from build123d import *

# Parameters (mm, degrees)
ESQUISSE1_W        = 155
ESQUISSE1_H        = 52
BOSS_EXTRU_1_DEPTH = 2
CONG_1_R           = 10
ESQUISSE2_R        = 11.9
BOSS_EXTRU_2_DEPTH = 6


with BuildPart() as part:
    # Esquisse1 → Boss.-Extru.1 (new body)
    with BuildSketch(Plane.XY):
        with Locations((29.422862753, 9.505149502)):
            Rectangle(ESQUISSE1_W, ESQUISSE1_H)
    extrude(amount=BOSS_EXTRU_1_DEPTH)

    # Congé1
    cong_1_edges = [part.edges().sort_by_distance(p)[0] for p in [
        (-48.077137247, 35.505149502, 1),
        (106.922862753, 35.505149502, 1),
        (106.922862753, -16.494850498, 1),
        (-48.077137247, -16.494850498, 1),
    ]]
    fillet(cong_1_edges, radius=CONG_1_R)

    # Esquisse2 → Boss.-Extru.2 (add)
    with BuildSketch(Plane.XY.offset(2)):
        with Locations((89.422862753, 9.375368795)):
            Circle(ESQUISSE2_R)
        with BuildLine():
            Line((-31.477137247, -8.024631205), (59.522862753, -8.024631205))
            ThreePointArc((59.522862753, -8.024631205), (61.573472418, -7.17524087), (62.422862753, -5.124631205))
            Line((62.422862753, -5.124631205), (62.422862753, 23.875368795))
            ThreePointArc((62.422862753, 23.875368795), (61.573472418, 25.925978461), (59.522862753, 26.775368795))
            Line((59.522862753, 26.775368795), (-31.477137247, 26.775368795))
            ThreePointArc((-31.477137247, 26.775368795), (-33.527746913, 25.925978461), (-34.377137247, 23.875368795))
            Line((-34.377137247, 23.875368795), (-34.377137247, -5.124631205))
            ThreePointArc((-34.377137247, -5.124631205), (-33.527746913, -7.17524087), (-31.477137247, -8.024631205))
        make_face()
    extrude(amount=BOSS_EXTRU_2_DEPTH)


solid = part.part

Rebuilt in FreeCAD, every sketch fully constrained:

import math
import FreeCAD as App
import Part
import Sketcher

V = App.Vector


def edges_at(feature, points):
    """Names of the edges that pass closest to the given points."""
    edges = feature.Shape.Edges
    near = lambda p: min(range(len(edges)), key=lambda i: edges[i].distToShape(Part.Vertex(*p))[0])
    return sorted({f"Edge{near(p) + 1}" for p in points})


def add_polygon(sketch, points):
    """Adds a closed chain of lines whose ends are joined by coincident constraints."""
    first, n = sketch.GeometryCount, len(points)
    for a, b in zip(points, points[1:] + points[:1]):
        sketch.addGeometry(Part.LineSegment(App.Vector(*a, 0), App.Vector(*b, 0)), False)
    for i in range(n):
        sketch.addConstraint(Sketcher.Constraint("Coincident", first + i, 2, first + (i + 1) % n, 1))

doc = App.newDocument("Part")
body = doc.addObject("PartDesign::Body", "Body")

# Sketch on XY plane
sketch1 = body.newObject("Sketcher::SketchObject", "Sketch")
sketch1.AttachmentSupport = (doc.getObject("XY_Plane"), [""])
sketch1.MapMode = "FlatFace"
add_polygon(sketch1, [(-48, 36), (-48, -16), (107, -16), (107, 36)])  # lines 0-3
sketch1.addConstraint([
    Sketcher.Constraint("Vertical", 0),
    Sketcher.Constraint("Horizontal", 1),
    Sketcher.Constraint("Vertical", 2),
    Sketcher.Constraint("Horizontal", 3),
    Sketcher.Constraint("DistanceX", 1, 1, 1, 2, 155.0),
    Sketcher.Constraint("DistanceY", 0, 2, 0, 1, 52.0),
    Sketcher.Constraint("DistanceY", 0, 2, -1, 1, 16.49485),
    Sketcher.Constraint("DistanceX", 0, 2, -1, 1, 48.077137),
])
pad1 = body.newObject("PartDesign::Pad", "Pad")
pad1.Profile = sketch1
pad1.Length = 2
doc.recompute()

fillet = body.newObject("PartDesign::Fillet", "Fillet")
fillet.Base = (pad1, edges_at(pad1, [
    (-48.077, 35.505, 1),
    (106.923, 35.505, 1),
    (106.923, -16.495, 1),
    (-48.077, -16.495, 1),
]))
fillet.Radius = 10

# Sketch on XY plane
sketch2 = body.newObject("Sketcher::SketchObject", "Sketch001")
sketch2.AttachmentSupport = (doc.getObject("XY_Plane"), [""])
sketch2.MapMode = "FlatFace"
sketch2.AttachmentOffset = App.Placement(V(0, 0, 2), App.Rotation())
sketch2.addGeometry([
    Part.Circle(V(89.4, 9.4, 0), V(0, 0, 1), 11.9),  # 0
    Part.LineSegment(V(-31.5, -8, 0), V(59.5, -8, 0)),  # 1
    Part.ArcOfCircle(Part.Circle(V(59.5, -5.1, 0), V(0, 0, 1), 2.9), math.radians(-90), math.radians(0)),  # 2
    Part.LineSegment(V(62.4, -5.1, 0), V(62.4, 23.9, 0)),  # 3
    Part.ArcOfCircle(Part.Circle(V(59.5, 23.9, 0), V(0, 0, 1), 2.9), math.radians(0), math.radians(90)),  # 4
    Part.LineSegment(V(59.5, 26.8, 0), V(-31.5, 26.8, 0)),  # 5
    Part.ArcOfCircle(Part.Circle(V(-31.5, 23.9, 0), V(0, 0, 1), 2.9), math.radians(90), math.radians(180)),  # 6
    Part.LineSegment(V(-34.4, 23.9, 0), V(-34.4, -5.1, 0)),  # 7
    Part.ArcOfCircle(Part.Circle(V(-31.5, -5.1, 0), V(0, 0, 1), 2.9), math.radians(180), math.radians(270)),  # 8
], False)
sketch2.addConstraint([
    Sketcher.Constraint("Tangent", 1, 2, 2, 1),
    Sketcher.Constraint("Tangent", 2, 2, 3, 1),
    Sketcher.Constraint("Tangent", 3, 2, 4, 1),
    Sketcher.Constraint("Tangent", 4, 2, 5, 1),
    Sketcher.Constraint("Tangent", 5, 2, 6, 1),
    Sketcher.Constraint("Tangent", 6, 2, 7, 1),
    Sketcher.Constraint("Tangent", 7, 2, 8, 1),
    Sketcher.Constraint("Tangent", 8, 2, 1, 1),
    Sketcher.Constraint("Horizontal", 1),
    Sketcher.Constraint("Vertical", 3),
    Sketcher.Constraint("Horizontal", 5),
    Sketcher.Constraint("Vertical", 7),
    Sketcher.Constraint("Equal", 2, 4),
    Sketcher.Constraint("Equal", 4, 6),
    Sketcher.Constraint("Equal", 6, 8),
    Sketcher.Constraint("Diameter", 0, 23.8),
    Sketcher.Constraint("Radius", 2, 2.9),
    Sketcher.Constraint("DistanceX", 1, 1, 1, 2, 91.0),
    Sketcher.Constraint("DistanceY", 3, 1, 3, 2, 29.0),
    Sketcher.Constraint("DistanceX", 2, 2, 0, 3, 27.0),
    Sketcher.Constraint("DistanceY", 2, 3, 0, 3, 14.5),
    Sketcher.Constraint("DistanceY", -1, 1, 0, 3, 9.375369),
    Sketcher.Constraint("DistanceX", -1, 1, 0, 3, 89.422863),
])
pad2 = body.newObject("PartDesign::Pad", "Pad001")
pad2.Profile = sketch2
pad2.Length = 6

doc.recompute()
